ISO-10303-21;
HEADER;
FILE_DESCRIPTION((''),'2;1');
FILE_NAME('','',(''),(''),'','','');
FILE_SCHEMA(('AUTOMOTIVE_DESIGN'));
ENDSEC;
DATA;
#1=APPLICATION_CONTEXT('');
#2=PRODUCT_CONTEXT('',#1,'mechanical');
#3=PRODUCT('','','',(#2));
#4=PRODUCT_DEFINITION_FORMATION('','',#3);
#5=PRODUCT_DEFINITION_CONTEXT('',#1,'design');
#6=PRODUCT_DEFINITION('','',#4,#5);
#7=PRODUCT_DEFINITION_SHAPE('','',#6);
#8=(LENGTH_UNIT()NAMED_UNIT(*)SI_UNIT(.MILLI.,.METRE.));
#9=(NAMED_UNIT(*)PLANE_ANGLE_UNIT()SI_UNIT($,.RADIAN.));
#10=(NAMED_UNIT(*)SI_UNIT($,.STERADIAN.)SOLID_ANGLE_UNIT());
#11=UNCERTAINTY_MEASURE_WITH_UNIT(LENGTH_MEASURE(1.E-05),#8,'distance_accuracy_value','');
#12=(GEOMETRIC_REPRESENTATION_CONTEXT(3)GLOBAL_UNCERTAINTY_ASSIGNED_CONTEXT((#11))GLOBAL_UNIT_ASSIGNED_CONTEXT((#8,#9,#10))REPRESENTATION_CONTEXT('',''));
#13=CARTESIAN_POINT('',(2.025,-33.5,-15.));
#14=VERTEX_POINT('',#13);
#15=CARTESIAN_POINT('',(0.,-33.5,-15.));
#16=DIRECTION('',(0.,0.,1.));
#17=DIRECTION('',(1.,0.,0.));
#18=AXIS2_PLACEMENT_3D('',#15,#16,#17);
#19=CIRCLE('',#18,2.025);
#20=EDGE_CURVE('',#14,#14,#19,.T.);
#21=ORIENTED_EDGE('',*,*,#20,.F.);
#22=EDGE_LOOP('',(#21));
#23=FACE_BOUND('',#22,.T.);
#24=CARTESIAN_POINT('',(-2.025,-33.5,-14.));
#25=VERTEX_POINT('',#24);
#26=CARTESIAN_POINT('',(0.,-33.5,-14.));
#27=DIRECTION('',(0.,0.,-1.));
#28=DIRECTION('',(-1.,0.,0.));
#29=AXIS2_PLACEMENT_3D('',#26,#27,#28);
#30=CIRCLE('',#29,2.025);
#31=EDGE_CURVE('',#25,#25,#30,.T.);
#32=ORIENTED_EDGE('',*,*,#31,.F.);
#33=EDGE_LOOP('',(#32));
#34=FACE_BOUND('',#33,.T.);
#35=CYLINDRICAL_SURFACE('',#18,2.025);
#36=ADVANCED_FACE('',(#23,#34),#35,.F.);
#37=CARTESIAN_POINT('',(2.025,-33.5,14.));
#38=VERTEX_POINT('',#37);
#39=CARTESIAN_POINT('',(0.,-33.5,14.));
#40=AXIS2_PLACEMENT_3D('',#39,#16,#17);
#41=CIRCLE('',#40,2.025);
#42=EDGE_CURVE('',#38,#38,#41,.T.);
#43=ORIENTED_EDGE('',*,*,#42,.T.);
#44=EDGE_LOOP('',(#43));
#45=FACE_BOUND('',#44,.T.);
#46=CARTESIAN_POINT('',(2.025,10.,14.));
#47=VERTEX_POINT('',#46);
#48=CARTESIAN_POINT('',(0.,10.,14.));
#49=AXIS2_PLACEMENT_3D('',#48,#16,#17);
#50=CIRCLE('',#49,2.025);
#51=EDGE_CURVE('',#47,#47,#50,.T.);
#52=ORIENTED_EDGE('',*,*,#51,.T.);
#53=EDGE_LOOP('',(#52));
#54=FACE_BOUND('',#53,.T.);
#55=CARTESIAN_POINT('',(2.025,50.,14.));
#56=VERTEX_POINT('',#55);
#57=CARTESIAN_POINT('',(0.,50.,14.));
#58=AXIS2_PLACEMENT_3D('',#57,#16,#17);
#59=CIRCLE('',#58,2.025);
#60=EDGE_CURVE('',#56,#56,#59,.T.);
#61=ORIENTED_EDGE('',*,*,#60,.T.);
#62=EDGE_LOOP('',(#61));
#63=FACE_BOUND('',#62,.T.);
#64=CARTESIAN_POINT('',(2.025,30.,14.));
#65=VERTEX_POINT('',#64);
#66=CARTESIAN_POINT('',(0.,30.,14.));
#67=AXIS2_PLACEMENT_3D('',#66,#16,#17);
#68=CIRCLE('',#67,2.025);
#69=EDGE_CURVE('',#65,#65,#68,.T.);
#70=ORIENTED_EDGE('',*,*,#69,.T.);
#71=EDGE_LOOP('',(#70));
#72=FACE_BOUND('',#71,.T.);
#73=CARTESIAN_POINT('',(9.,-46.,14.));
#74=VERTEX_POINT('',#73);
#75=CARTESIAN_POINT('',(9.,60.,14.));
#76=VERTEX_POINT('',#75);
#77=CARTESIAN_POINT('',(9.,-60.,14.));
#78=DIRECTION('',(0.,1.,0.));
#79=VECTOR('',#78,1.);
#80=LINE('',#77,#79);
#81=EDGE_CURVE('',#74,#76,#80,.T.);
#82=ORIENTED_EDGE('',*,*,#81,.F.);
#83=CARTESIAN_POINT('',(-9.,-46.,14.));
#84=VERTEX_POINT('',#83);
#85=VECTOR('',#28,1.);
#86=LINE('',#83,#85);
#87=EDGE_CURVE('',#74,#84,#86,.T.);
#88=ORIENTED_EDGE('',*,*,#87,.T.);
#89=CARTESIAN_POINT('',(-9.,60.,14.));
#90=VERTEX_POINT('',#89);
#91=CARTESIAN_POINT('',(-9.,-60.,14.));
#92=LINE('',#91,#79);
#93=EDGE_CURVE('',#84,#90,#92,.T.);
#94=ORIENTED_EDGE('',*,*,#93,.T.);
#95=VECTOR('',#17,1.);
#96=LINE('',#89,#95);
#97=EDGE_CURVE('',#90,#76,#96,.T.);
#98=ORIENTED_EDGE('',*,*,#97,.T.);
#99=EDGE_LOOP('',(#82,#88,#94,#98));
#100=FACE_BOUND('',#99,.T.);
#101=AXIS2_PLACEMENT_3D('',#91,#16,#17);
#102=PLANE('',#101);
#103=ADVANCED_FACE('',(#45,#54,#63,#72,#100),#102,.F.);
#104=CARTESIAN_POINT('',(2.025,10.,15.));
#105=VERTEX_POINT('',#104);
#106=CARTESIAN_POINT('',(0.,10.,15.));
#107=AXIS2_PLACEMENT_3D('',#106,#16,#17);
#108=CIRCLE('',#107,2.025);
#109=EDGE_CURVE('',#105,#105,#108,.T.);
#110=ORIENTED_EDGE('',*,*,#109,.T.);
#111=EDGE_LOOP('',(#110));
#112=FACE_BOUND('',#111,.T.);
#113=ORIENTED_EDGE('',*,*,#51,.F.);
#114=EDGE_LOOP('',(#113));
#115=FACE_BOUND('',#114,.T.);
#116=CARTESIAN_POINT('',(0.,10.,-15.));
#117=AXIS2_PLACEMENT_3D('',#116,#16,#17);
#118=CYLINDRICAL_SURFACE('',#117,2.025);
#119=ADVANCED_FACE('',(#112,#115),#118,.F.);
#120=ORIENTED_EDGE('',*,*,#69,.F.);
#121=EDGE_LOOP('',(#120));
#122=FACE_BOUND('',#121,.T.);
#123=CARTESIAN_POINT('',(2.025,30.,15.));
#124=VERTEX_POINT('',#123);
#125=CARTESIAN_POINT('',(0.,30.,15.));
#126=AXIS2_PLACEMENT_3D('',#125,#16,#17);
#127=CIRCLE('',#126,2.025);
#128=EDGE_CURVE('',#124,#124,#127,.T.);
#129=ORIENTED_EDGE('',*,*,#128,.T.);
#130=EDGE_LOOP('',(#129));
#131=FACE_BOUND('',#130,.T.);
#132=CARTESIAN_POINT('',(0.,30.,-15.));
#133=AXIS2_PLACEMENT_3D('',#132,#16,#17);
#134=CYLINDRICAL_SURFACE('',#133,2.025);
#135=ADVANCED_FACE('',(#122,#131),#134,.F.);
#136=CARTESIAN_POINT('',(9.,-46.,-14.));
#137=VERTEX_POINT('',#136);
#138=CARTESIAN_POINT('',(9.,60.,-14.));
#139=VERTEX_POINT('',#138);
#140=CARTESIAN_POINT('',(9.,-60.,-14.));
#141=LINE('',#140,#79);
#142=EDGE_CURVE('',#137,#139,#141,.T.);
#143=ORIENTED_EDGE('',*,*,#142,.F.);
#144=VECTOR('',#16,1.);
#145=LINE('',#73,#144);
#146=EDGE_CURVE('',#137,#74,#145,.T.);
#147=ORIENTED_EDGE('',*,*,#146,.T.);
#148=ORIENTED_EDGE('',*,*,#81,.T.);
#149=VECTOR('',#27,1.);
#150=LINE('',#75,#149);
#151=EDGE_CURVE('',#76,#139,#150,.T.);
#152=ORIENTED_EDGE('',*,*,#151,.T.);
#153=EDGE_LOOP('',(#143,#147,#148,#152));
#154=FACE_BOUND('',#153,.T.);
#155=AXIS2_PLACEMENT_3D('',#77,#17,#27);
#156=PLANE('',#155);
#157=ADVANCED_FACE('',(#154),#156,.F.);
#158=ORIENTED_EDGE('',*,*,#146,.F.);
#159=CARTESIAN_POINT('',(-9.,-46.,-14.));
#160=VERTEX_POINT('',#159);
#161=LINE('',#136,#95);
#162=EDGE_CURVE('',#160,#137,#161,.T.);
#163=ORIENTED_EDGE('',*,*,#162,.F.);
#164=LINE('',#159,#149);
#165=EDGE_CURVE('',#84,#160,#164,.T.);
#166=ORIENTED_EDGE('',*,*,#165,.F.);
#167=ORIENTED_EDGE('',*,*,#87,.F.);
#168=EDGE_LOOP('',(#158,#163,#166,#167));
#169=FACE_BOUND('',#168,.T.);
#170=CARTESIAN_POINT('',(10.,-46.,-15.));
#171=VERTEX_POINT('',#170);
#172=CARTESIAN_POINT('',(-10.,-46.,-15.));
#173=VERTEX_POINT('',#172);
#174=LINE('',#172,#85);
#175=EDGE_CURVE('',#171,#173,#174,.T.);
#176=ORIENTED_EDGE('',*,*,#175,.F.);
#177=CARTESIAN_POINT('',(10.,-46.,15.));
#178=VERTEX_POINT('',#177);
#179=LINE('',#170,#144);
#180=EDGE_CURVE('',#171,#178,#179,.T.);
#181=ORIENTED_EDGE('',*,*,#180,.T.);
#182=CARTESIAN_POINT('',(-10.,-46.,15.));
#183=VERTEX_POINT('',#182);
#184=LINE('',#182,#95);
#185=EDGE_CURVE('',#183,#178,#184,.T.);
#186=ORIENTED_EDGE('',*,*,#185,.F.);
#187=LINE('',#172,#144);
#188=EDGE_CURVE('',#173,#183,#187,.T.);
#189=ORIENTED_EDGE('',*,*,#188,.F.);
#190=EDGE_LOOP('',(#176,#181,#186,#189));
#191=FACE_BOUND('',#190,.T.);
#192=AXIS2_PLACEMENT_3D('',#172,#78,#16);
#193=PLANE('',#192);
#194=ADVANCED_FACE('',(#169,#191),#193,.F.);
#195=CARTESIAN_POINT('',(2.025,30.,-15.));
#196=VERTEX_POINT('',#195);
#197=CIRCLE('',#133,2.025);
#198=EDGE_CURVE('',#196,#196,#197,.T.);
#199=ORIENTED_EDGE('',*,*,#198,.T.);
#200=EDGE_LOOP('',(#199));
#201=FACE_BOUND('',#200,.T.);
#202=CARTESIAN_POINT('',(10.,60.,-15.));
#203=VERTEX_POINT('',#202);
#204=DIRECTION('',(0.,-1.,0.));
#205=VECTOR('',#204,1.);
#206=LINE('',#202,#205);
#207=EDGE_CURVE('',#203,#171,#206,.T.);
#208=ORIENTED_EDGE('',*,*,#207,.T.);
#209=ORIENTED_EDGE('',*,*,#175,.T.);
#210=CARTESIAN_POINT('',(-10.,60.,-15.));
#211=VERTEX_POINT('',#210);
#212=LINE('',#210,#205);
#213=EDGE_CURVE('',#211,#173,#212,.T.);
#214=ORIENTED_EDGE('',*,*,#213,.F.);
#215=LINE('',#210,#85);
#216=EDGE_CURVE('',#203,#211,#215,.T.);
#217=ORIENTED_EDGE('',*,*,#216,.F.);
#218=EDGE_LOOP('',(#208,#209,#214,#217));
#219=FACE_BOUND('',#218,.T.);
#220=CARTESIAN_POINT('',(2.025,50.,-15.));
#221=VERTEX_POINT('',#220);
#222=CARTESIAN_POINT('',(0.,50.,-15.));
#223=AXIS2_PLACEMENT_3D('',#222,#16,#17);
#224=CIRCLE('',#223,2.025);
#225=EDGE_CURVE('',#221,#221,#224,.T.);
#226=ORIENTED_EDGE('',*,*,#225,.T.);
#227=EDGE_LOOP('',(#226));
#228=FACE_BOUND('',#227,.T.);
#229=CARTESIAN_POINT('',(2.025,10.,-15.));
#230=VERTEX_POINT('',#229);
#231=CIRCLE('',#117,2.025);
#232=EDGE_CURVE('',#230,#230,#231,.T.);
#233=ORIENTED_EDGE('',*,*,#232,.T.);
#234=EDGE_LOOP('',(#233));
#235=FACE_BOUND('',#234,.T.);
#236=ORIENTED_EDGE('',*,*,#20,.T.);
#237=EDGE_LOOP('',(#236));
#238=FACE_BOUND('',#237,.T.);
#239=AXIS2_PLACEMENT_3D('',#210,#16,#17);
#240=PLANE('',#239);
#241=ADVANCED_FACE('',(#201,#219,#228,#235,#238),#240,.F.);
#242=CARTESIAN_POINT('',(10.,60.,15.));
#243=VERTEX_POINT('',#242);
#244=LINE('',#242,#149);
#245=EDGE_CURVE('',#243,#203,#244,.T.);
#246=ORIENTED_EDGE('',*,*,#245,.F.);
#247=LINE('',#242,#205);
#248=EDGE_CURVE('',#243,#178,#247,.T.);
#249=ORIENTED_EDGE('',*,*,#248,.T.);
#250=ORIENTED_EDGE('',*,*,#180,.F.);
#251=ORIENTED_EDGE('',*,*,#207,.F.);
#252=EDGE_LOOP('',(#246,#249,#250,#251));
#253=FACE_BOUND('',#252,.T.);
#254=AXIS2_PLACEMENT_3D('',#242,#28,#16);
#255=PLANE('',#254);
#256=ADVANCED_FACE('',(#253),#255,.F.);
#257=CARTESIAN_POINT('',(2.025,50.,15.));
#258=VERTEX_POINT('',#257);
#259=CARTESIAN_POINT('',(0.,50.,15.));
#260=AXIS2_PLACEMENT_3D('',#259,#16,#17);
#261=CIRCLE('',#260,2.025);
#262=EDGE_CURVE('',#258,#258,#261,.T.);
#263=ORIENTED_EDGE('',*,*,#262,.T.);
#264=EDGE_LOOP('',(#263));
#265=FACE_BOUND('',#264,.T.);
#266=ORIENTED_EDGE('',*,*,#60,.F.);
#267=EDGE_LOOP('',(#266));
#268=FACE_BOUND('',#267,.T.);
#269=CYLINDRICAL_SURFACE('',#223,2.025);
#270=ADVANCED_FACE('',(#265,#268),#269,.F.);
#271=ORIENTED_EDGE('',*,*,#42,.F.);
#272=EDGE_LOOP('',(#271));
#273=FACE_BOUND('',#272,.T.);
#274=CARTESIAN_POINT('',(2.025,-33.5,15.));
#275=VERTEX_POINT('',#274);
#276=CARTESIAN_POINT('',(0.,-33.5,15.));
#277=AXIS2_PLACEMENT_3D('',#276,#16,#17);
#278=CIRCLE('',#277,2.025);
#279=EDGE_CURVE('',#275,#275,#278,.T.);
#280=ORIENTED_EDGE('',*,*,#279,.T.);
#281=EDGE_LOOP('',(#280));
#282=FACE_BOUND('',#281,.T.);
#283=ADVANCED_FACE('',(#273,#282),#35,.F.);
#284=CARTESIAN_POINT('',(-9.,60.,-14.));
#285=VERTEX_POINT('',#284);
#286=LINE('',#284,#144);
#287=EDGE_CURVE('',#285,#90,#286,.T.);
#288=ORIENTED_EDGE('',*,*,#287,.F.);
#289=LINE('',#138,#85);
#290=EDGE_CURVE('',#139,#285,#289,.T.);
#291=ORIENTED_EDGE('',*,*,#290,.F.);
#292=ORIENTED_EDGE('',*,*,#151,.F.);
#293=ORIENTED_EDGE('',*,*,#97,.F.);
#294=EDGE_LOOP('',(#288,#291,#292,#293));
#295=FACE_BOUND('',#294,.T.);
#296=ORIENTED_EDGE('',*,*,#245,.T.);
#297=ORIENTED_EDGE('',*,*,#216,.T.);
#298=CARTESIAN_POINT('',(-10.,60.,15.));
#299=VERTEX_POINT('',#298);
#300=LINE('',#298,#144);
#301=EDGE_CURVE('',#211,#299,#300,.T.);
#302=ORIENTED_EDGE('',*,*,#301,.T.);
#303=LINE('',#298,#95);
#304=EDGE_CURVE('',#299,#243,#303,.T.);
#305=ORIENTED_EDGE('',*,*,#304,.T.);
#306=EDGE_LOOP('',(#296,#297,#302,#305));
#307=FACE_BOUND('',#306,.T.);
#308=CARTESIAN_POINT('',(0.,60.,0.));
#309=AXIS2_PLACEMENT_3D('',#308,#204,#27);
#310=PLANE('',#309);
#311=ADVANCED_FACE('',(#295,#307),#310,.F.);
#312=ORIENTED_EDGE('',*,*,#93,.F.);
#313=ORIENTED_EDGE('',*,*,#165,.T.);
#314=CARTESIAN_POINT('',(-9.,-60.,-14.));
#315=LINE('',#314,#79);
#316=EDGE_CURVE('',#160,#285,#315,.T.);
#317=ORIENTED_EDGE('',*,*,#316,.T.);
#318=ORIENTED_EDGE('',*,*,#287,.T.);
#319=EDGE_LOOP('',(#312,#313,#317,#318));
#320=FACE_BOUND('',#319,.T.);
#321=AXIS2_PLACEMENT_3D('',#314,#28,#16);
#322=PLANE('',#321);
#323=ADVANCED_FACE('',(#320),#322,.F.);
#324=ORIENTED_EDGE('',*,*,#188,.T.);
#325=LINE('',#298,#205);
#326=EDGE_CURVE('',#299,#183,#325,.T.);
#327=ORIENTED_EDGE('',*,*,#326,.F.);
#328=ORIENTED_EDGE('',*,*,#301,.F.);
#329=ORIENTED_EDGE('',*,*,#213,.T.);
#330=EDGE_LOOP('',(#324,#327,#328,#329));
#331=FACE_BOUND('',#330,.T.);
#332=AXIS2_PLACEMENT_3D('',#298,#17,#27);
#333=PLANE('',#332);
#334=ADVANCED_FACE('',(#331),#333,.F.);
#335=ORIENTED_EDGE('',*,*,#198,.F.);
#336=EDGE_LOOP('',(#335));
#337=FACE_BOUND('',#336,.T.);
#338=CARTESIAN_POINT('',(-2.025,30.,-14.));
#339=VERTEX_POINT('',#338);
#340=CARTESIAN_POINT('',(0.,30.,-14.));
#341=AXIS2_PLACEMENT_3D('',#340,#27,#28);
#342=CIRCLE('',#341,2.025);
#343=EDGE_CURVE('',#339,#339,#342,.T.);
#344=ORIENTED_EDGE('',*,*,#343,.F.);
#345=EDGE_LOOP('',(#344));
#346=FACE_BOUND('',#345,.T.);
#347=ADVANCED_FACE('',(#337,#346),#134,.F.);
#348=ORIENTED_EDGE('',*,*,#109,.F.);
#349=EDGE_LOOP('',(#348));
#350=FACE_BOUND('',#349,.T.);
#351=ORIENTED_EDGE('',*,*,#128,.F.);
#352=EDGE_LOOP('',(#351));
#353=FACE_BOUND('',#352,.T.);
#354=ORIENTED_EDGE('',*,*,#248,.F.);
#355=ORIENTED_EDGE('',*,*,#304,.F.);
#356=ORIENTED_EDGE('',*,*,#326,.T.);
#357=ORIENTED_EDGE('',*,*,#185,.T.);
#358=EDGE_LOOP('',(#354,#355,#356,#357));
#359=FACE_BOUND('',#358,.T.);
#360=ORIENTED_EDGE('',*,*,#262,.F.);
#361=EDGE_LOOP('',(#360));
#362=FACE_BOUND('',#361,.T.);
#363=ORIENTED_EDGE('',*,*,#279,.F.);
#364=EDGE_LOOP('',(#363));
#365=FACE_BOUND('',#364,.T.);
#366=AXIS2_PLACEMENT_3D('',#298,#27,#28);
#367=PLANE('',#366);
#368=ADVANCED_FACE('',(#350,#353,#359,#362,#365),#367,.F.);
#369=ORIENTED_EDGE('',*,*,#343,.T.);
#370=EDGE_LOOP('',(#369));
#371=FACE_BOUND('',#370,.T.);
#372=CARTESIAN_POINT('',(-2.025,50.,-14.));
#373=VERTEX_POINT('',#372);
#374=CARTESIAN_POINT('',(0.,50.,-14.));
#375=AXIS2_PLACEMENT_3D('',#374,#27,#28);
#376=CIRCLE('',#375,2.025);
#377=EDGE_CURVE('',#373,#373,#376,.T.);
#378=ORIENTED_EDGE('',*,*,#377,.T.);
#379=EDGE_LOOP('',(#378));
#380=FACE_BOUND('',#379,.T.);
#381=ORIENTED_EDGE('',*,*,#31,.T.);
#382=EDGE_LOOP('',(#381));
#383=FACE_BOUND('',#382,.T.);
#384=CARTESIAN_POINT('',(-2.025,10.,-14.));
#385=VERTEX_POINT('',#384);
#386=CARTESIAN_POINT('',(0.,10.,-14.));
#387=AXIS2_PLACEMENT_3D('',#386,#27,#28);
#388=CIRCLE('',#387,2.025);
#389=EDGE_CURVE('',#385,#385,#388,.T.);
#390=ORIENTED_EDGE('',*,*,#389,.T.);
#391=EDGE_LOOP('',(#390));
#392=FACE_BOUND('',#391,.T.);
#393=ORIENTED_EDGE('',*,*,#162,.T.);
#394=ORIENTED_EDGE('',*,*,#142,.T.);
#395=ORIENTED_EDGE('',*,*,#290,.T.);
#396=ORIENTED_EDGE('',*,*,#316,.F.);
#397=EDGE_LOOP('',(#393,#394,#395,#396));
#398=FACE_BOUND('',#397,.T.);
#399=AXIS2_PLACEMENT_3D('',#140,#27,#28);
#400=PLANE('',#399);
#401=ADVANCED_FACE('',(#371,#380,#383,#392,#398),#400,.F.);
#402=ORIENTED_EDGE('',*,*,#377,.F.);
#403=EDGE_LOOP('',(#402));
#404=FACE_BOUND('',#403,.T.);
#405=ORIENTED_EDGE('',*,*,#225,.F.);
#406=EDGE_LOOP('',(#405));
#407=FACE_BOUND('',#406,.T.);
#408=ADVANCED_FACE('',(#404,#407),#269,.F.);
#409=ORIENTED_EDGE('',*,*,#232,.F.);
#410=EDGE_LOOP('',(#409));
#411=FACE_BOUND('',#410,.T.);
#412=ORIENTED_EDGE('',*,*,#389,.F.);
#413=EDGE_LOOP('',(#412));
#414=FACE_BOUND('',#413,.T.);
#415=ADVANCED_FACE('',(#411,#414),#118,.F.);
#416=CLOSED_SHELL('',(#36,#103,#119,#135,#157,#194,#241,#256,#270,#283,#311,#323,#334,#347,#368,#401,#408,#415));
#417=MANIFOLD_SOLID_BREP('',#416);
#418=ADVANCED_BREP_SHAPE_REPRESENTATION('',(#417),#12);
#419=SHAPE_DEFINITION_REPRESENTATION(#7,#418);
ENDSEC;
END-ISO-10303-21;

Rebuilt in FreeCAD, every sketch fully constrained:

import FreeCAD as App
import Part
import Sketcher
from FreeCAD import Vector


def add_polygon(sketch, points):
    """Adds a closed chain of lines whose ends are joined by coincident constraints."""
    first, n = sketch.GeometryCount, len(points)
    for a, b in zip(points, points[1:] + points[:1]):
        sketch.addGeometry(Part.LineSegment(App.Vector(*a, 0), App.Vector(*b, 0)), False)
    for i in range(n):
        sketch.addConstraint(Sketcher.Constraint("Coincident", first + i, 2, first + (i + 1) % n, 1))

doc = App.newDocument("Part")
body = doc.addObject("PartDesign::Body", "Body")

sketch1 = body.newObject("Sketcher::SketchObject", "Sketch")
sketch1.AttachmentSupport = (doc.getObject("XZ_Plane"), [""])
sketch1.MapMode = "FlatFace"
add_polygon(sketch1, [(-10, -15), (-10, 15), (10, 15), (10, -15)])
sketch1.addConstraint([
    Sketcher.Constraint("Vertical", 0),
    Sketcher.Constraint("Horizontal", 1),
    Sketcher.Constraint("Vertical", 2),
    Sketcher.Constraint("Horizontal", 3),
    Sketcher.Constraint("Symmetric", 0, 2, 2, 2, -1, 1),
    Sketcher.Constraint("DistanceX", 1, 1, 1, 2, 20.0),
    Sketcher.Constraint("DistanceY", 0, 1, 0, 2, 30.0),
])
pad1 = body.newObject("PartDesign::Pad", "Pad")
pad1.Profile = sketch1
pad1.Length = 120
pad1.Midplane = True

sketch2 = body.newObject("Sketcher::SketchObject", "Sketch001")
sketch2.AttachmentSupport = (doc.getObject("XZ_Plane"), [""])
sketch2.MapMode = "FlatFace"
add_polygon(sketch2, [(-9, -14), (-9, 14), (9, 14), (9, -14)])
sketch2.addConstraint([
    Sketcher.Constraint("Vertical", 0),
    Sketcher.Constraint("Horizontal", 1),
    Sketcher.Constraint("Vertical", 2),
    Sketcher.Constraint("Horizontal", 3),
    Sketcher.Constraint("Symmetric", 0, 2, 2, 2, -1, 1),
    Sketcher.Constraint("DistanceX", 1, 1, 1, 2, 18.0),
    Sketcher.Constraint("DistanceY", 0, 1, 0, 2, 28.0),
])
pocket1 = body.newObject("PartDesign::Pocket", "Pocket")
pocket1.Profile = sketch2
pocket1.Type = "ThroughAll"
pocket1.Midplane = True

sketch3 = body.newObject("Sketcher::SketchObject", "Sketch002")
sketch3.AttachmentSupport = (doc.getObject("XY_Plane"), [""])
sketch3.MapMode = "FlatFace"
sketch3.AttachmentOffset = App.Placement(Vector(0, 0, 15), App.Rotation())
add_polygon(sketch3, [(-10, -46), (-10, -60), (10, -60), (10, -46)])
sketch3.addConstraint([
    Sketcher.Constraint("Vertical", 0),
    Sketcher.Constraint("Horizontal", 1),
    Sketcher.Constraint("Vertical", 2),
    Sketcher.Constraint("Horizontal", 3),
    Sketcher.Constraint("DistanceX", 1, 1, 1, 2, 20.0),
    Sketcher.Constraint("DistanceY", 0, 2, 0, 1, 14.0),
    Sketcher.Constraint("DistanceX", 0, 2, -1, 1, 10.0),
    Sketcher.Constraint("DistanceY", 0, 2, -1, 1, 60.0),
])
pocket2 = body.newObject("PartDesign::Pocket", "Pocket001")
pocket2.Profile = sketch3
pocket2.Type = "ThroughAll"
pocket2.Midplane = True

sketch4 = body.newObject("Sketcher::SketchObject", "Sketch003")
sketch4.AttachmentSupport = (doc.getObject("XY_Plane"), [""])
sketch4.MapMode = "FlatFace"
sketch4.AttachmentOffset = App.Placement(Vector(0, 0, 15), App.Rotation())
sketch4.addGeometry(Part.Circle(Vector(0, -33.5, 0), Vector(0, 0, 1), 2), False)
sketch4.addConstraint([
    Sketcher.Constraint("PointOnObject", 0, 3, -2),
    Sketcher.Constraint("Diameter", 0, 4.05),
    Sketcher.Constraint("DistanceY", 0, 3, -1, 1, 33.5),
])
pocket3 = body.newObject("PartDesign::Pocket", "Pocket002")
pocket3.Profile = sketch4
pocket3.Type = "ThroughAll"

sketch5 = body.newObject("Sketcher::SketchObject", "Sketch004")
sketch5.AttachmentSupport = (doc.getObject("XY_Plane"), [""])
sketch5.MapMode = "FlatFace"
sketch5.AttachmentOffset = App.Placement(Vector(0, 0, 15), App.Rotation())
sketch5.addGeometry([
    Part.Circle(Vector(0, 50, 0), Vector(0, 0, 1), 2),
    Part.Circle(Vector(0, 30, 0), Vector(0, 0, 1), 2),
    Part.Circle(Vector(0, 10, 0), Vector(0, 0, 1), 2),
], False)
sketch5.addConstraint([
    Sketcher.Constraint("Equal", 0, 1),
    Sketcher.Constraint("Equal", 1, 2),
    Sketcher.Constraint("PointOnObject", 0, 3, -2),
    Sketcher.Constraint("PointOnObject", 1, 3, -2),
    Sketcher.Constraint("PointOnObject", 2, 3, -2),
    Sketcher.Constraint("Diameter", 0, 4.05),
    Sketcher.Constraint("DistanceY", -1, 1, 0, 3, 50.0),
    Sketcher.Constraint("DistanceY", -1, 1, 1, 3, 30.0),
    Sketcher.Constraint("DistanceY", -1, 1, 2, 3, 10.0),
])
pocket4 = body.newObject("PartDesign::Pocket", "Pocket003")
pocket4.Profile = sketch5
pocket4.Type = "ThroughAll"
pocket4.Midplane = True

doc.recompute()
